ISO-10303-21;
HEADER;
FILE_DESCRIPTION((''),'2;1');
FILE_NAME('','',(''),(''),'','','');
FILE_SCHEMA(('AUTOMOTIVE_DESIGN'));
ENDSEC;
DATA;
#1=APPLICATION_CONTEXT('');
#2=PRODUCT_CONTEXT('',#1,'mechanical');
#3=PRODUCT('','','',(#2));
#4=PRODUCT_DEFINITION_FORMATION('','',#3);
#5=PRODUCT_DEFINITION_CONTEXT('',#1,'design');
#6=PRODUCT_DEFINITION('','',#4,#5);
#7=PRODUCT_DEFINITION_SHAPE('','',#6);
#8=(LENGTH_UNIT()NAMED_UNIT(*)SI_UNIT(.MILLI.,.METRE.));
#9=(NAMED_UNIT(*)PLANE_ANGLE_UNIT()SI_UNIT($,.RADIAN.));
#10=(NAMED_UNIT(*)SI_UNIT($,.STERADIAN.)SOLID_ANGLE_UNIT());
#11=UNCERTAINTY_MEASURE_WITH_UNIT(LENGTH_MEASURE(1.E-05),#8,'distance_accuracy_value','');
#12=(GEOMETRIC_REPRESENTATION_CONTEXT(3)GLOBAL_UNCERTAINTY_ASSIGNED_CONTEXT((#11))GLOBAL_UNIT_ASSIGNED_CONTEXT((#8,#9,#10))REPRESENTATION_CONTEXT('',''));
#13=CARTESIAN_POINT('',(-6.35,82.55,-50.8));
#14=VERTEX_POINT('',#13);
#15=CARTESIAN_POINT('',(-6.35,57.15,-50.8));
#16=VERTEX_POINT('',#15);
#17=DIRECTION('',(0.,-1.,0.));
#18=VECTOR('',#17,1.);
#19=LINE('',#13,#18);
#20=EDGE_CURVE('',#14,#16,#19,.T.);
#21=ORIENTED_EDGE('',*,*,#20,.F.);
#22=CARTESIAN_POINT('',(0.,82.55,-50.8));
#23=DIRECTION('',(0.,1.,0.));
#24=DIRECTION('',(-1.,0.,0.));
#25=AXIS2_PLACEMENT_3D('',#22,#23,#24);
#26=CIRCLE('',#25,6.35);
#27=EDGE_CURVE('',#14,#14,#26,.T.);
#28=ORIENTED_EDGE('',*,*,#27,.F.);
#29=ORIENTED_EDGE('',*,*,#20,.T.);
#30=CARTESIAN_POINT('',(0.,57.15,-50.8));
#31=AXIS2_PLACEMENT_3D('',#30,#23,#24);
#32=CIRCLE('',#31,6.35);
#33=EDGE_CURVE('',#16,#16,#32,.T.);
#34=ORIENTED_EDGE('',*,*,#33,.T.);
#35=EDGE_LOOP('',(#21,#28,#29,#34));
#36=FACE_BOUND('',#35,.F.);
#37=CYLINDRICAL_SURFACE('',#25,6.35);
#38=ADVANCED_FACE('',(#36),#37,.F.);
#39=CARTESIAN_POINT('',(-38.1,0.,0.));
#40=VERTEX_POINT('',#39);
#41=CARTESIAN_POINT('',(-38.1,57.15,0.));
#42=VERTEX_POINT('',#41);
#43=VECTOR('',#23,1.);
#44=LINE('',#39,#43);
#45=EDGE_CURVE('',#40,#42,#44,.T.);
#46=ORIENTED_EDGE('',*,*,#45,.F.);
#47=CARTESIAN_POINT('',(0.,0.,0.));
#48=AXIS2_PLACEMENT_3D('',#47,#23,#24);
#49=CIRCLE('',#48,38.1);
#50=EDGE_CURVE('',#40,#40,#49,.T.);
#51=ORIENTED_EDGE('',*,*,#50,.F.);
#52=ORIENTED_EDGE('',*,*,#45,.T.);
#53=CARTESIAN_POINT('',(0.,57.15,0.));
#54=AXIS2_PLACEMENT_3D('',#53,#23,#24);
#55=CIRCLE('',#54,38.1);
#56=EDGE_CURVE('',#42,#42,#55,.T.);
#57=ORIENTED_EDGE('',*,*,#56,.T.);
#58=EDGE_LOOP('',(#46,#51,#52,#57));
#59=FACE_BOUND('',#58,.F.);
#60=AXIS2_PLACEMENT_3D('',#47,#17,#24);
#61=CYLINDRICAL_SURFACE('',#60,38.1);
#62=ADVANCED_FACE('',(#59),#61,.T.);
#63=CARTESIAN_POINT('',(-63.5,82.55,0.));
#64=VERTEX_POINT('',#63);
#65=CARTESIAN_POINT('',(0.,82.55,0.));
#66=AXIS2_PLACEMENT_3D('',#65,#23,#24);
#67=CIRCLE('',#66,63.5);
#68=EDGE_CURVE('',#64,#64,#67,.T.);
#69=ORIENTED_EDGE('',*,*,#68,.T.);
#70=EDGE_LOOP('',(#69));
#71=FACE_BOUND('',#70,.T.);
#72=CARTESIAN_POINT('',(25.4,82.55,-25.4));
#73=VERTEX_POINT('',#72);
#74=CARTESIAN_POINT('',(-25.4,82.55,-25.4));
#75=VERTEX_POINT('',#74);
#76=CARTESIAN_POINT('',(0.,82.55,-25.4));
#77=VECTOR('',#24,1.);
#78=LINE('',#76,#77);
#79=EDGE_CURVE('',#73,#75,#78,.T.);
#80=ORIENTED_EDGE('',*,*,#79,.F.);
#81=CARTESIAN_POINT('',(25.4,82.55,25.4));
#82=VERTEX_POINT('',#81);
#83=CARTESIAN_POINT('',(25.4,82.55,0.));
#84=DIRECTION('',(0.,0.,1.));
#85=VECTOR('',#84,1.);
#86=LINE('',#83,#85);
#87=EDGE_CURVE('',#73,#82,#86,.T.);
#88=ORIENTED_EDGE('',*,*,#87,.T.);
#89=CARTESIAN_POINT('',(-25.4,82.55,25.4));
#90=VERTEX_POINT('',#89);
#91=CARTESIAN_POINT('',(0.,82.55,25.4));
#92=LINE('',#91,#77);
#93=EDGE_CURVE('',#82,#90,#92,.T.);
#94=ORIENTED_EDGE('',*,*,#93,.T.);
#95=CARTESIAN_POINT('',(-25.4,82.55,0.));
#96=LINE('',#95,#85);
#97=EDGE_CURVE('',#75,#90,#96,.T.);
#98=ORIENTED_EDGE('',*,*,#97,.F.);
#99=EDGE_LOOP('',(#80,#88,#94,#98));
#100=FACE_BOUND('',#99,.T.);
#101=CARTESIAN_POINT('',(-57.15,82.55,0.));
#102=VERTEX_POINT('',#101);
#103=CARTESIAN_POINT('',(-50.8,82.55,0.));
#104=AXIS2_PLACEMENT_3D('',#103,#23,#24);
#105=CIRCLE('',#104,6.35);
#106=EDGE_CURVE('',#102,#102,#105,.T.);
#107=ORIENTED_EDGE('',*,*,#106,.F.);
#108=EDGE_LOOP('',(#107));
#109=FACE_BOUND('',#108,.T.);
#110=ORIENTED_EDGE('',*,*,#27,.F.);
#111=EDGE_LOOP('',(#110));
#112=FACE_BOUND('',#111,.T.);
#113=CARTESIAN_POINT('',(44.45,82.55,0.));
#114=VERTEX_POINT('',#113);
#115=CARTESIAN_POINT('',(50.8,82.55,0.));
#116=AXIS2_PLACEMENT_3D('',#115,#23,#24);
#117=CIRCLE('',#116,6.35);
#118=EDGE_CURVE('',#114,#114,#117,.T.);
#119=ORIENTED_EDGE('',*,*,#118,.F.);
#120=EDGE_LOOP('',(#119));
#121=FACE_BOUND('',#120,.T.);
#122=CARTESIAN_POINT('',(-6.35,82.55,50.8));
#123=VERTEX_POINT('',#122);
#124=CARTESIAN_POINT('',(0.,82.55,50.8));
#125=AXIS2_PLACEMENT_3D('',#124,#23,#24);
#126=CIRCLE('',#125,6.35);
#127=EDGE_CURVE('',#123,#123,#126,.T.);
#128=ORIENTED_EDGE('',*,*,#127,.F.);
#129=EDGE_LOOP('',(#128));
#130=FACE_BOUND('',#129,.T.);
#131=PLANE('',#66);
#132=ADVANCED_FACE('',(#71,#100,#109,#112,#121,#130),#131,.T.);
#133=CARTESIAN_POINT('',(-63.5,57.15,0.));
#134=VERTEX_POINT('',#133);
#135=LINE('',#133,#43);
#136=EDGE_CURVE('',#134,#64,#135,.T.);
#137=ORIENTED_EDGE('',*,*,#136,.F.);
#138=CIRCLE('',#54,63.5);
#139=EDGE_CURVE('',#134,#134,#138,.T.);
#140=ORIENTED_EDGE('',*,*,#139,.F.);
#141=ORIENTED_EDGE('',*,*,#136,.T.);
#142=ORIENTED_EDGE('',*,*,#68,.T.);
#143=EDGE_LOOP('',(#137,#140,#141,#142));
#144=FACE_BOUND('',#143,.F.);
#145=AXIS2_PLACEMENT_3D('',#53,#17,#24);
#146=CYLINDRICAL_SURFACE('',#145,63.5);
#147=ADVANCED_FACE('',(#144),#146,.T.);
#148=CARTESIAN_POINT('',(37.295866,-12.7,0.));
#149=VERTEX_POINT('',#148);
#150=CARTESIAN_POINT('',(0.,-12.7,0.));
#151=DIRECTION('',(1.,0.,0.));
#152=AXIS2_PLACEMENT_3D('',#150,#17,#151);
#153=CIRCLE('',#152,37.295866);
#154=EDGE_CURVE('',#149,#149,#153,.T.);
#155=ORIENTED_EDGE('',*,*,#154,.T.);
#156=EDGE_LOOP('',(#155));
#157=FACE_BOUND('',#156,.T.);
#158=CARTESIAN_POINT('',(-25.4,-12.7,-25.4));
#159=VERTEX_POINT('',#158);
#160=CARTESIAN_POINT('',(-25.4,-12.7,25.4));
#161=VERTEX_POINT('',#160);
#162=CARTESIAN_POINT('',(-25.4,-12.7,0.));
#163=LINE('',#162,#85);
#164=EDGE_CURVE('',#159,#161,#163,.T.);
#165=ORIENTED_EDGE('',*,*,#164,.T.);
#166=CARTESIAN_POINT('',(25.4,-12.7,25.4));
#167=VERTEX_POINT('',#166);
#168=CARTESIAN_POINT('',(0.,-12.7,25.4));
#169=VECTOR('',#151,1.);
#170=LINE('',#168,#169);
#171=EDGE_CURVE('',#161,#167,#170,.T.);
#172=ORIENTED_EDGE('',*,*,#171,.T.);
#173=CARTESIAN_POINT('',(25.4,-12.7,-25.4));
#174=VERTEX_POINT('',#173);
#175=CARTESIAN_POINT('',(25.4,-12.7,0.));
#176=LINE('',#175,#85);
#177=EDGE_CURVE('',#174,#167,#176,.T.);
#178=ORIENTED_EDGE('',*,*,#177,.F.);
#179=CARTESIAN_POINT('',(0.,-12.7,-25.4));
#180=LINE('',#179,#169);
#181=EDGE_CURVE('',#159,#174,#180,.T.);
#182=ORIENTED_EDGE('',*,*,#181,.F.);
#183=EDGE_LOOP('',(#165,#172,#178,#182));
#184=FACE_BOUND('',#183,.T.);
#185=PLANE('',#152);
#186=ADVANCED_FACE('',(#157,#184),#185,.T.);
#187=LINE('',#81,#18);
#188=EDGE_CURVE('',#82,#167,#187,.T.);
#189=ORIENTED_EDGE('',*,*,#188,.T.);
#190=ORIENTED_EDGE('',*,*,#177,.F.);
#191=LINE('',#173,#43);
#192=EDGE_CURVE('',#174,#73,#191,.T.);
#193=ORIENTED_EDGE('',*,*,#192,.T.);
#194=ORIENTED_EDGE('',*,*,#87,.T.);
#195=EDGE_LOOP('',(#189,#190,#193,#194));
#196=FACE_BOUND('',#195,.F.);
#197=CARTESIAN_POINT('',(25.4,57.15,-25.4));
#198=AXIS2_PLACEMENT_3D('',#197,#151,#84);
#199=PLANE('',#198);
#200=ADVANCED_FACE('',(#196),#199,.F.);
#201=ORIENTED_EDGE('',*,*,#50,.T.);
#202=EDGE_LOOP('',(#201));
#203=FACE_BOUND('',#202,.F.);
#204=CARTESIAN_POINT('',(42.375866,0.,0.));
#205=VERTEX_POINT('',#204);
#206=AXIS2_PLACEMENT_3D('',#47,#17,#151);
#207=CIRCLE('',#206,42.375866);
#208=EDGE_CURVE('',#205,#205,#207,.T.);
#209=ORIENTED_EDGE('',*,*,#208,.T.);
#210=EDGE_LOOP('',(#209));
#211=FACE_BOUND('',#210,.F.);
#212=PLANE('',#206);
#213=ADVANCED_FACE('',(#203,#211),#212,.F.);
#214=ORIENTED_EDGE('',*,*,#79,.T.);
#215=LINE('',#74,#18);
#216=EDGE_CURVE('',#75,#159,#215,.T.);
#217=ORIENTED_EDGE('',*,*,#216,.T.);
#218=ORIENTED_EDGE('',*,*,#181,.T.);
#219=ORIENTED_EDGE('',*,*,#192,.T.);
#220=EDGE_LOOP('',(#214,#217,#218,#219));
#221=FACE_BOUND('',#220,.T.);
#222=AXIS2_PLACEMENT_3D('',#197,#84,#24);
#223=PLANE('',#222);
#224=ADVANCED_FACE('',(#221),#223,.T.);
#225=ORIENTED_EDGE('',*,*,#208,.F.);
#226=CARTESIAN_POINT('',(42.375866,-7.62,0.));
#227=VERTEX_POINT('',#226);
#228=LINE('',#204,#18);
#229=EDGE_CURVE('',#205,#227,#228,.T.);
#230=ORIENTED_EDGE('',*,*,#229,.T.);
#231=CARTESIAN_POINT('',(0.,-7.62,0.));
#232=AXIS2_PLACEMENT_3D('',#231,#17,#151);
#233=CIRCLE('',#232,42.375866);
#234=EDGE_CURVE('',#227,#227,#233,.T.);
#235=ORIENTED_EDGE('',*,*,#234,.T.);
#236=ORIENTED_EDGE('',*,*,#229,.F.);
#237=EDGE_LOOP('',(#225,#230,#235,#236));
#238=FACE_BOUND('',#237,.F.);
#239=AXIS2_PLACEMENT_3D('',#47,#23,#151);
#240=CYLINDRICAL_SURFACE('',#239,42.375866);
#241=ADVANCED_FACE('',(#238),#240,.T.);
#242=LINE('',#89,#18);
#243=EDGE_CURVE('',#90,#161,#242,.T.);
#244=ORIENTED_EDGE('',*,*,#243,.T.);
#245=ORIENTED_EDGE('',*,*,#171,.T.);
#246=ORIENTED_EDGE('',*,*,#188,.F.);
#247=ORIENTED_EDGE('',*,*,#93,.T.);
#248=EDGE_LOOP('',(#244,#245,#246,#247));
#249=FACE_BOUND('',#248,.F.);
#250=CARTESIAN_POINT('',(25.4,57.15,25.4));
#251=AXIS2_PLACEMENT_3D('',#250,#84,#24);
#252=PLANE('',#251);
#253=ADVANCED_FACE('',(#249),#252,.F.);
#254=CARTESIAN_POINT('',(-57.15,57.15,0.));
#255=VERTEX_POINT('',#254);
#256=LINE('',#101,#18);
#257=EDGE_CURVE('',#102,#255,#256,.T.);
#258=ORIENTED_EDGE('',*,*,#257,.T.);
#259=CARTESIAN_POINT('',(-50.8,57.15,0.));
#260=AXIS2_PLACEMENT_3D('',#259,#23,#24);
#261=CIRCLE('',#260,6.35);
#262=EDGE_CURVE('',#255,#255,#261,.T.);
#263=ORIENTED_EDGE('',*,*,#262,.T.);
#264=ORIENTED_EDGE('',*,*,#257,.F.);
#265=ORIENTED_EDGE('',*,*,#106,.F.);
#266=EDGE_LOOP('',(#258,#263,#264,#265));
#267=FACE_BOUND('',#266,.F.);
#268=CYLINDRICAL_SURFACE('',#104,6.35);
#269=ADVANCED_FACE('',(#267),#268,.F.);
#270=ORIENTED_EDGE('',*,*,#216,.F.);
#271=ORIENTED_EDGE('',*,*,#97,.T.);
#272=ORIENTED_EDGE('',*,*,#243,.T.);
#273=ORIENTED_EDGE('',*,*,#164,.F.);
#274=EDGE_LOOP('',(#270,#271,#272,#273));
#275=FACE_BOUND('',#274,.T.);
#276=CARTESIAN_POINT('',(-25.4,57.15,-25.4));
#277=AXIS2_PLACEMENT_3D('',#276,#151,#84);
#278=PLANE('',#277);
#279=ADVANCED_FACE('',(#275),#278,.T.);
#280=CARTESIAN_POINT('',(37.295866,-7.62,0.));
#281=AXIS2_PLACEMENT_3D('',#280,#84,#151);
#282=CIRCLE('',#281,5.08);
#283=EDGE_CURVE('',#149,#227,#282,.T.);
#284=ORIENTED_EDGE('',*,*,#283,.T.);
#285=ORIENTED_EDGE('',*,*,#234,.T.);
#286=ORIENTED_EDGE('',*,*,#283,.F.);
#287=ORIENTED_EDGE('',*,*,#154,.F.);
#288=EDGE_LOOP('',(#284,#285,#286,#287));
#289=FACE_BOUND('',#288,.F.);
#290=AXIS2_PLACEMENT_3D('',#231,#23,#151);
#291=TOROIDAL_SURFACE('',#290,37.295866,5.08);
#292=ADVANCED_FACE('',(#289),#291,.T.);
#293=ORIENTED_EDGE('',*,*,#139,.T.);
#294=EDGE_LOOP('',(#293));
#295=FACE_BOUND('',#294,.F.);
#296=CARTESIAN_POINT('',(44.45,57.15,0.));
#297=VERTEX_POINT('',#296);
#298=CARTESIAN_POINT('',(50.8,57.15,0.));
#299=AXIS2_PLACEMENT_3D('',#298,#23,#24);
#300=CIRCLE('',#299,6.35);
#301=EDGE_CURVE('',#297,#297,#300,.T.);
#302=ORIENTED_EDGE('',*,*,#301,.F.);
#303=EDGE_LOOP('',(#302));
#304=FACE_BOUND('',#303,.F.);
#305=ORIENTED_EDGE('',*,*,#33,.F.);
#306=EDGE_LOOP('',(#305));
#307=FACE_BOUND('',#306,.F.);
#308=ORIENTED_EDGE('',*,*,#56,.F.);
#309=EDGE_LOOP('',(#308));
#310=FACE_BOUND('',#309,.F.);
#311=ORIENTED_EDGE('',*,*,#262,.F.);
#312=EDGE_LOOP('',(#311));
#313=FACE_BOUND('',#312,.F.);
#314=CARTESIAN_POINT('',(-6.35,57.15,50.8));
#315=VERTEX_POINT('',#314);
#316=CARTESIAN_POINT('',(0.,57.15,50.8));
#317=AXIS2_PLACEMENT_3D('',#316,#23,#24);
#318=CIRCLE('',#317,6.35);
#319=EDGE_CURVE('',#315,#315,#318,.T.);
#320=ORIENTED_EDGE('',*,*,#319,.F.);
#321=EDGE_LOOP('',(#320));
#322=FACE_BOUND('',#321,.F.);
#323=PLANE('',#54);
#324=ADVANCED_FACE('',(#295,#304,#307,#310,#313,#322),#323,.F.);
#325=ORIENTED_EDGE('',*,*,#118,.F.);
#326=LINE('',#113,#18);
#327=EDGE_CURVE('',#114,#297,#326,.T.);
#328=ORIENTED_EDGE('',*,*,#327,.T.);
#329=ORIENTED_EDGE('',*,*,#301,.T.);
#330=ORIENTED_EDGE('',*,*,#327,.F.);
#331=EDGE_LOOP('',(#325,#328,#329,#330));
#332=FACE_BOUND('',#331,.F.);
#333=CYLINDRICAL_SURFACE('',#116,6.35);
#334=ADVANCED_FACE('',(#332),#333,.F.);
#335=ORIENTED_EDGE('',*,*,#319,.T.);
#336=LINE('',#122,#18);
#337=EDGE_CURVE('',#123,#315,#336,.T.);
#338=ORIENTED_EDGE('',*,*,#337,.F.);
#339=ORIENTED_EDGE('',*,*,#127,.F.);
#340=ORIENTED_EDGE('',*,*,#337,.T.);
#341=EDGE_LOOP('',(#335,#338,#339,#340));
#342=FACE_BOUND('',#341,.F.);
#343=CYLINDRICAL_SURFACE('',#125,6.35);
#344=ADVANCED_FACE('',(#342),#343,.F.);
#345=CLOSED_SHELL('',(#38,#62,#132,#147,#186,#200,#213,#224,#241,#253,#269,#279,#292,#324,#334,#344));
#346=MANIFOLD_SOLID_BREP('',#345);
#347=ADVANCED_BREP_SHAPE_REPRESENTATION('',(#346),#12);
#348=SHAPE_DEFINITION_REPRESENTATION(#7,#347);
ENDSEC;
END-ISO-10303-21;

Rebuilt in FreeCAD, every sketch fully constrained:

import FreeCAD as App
import Part
import Sketcher
from FreeCAD import Vector
Q = App.Units.Quantity


def edges_at(feature, points):
    """Names of the edges that pass closest to the given points."""
    edges = feature.Shape.Edges
    near = lambda p: min(range(len(edges)), key=lambda i: edges[i].distToShape(Part.Vertex(*p))[0])
    return sorted({f"Edge{near(p) + 1}" for p in points})

doc = App.newDocument("Part")
body = doc.addObject("PartDesign::Body", "Body")

# Sketch on XZ plane
sketch1 = doc.addObject("Sketcher::SketchObject", "Sketch")
body.addObject(sketch1)
sketch1.AttachmentSupport = (doc.XZ_Plane, [""])
sketch1.MapMode = "FlatFace"
sketch1.addGeometry([
    Part.Circle(Vector(0, 0, 0), Vector(0, 0, 1), 42.375866),  # 0
    Part.LineSegment(Vector(25.4, -25.4, 0), Vector(-25.4, -25.4, 0)),  # 1
    Part.LineSegment(Vector(-25.4, -25.4, 0), Vector(-25.4, 25.4, 0)),  # 2
    Part.LineSegment(Vector(-25.4, 25.4, 0), Vector(25.4, 25.4, 0)),  # 3
    Part.LineSegment(Vector(25.4, 25.4, 0), Vector(25.4, -25.4, 0)),  # 4
], False)
sketch1.addConstraint([
    Sketcher.Constraint("Coincident", 1, 2, 2, 1),
    Sketcher.Constraint("Coincident", 2, 2, 3, 1),
    Sketcher.Constraint("Coincident", 3, 2, 4, 1),
    Sketcher.Constraint("Coincident", 4, 2, 1, 1),
    Sketcher.Constraint("Horizontal", 1),
    Sketcher.Constraint("Vertical", 2),
    Sketcher.Constraint("Horizontal", 3),
    Sketcher.Constraint("Vertical", 4),
    Sketcher.Constraint("Coincident", 0, 3, -1, 1),
    Sketcher.Constraint("Symmetric", 1, 2, 3, 2, -1, 1),
    Sketcher.Constraint("Equal", 3, 2),
    Sketcher.Constraint("DistanceX", 1, 2, 1, 1, Q("2 in")),
    Sketcher.Constraint("Diameter", 0, 84.751732),
])
pad1 = doc.addObject("PartDesign::Pad", "Pad")
body.addObject(pad1)
pad1.Profile = sketch1
pad1.Length = Q("0.5 in")

# Sketch on XZ plane
sketch2 = doc.addObject("Sketcher::SketchObject", "Sketch001")
body.addObject(sketch2)
sketch2.AttachmentSupport = (doc.XZ_Plane, [""])
sketch2.MapMode = "FlatFace"
sketch2.addGeometry([
    Part.Circle(Vector(0, 0, 0), Vector(0, 0, 1), 38.1),  # 0
    Part.LineSegment(Vector(-25.4, -25.4, 0), Vector(25.4, -25.4, 0)),  # 1
    Part.LineSegment(Vector(25.4, -25.4, 0), Vector(25.4, 25.4, 0)),  # 2
    Part.LineSegment(Vector(25.4, 25.4, 0), Vector(-25.4, 25.4, 0)),  # 3
    Part.LineSegment(Vector(-25.4, 25.4, 0), Vector(-25.4, -25.4, 0)),  # 4
], False)
sketch2.addConstraint([
    Sketcher.Constraint("Coincident", 1, 2, 2, 1),
    Sketcher.Constraint("Coincident", 2, 2, 3, 1),
    Sketcher.Constraint("Coincident", 3, 2, 4, 1),
    Sketcher.Constraint("Coincident", 4, 2, 1, 1),
    Sketcher.Constraint("Horizontal", 1),
    Sketcher.Constraint("Vertical", 2),
    Sketcher.Constraint("Horizontal", 3),
    Sketcher.Constraint("Vertical", 4),
    Sketcher.Constraint("Coincident", 0, 3, -1, 1),
    Sketcher.Constraint("Symmetric", 1, 2, 3, 2, -1, 1),
    Sketcher.Constraint("Equal", 3, 2),
    Sketcher.Constraint("Diameter", 0, Q("3 in")),
    Sketcher.Constraint("DistanceX", 1, 1, 1, 2, Q("2 in")),
])
pad2 = doc.addObject("PartDesign::Pad", "Pad001")
body.addObject(pad2)
pad2.Profile = sketch2
pad2.Length = Q("2.25 in")
pad2.Reversed = True

# Sketch on XZ plane
sketch3 = doc.addObject("Sketcher::SketchObject", "Sketch002")
body.addObject(sketch3)
sketch3.AttachmentSupport = (doc.XZ_Plane, [""])
sketch3.MapMode = "FlatFace"
sketch3.AttachmentOffset = App.Placement(Vector(0, 0, -2.25 * 25.4), App.Rotation())
sketch3.addGeometry([
    Part.Circle(Vector(0, 0, 0), Vector(0, 0, 1), 63.5),  # 0
    Part.LineSegment(Vector(-25.4, -25.4, 0), Vector(25.4, -25.4, 0)),  # 1
    Part.LineSegment(Vector(25.4, -25.4, 0), Vector(25.4, 25.4, 0)),  # 2
    Part.LineSegment(Vector(25.4, 25.4, 0), Vector(-25.4, 25.4, 0)),  # 3
    Part.LineSegment(Vector(-25.4, 25.4, 0), Vector(-25.4, -25.4, 0)),  # 4
], False)
sketch3.addConstraint([
    Sketcher.Constraint("Coincident", 1, 2, 2, 1),
    Sketcher.Constraint("Coincident", 2, 2, 3, 1),
    Sketcher.Constraint("Coincident", 3, 2, 4, 1),
    Sketcher.Constraint("Coincident", 4, 2, 1, 1),
    Sketcher.Constraint("Horizontal", 1),
    Sketcher.Constraint("Vertical", 2),
    Sketcher.Constraint("Horizontal", 3),
    Sketcher.Constraint("Vertical", 4),
    Sketcher.Constraint("Coincident", 0, 3, -1, 1),
    Sketcher.Constraint("Symmetric", 1, 2, 3, 2, -1, 1),
    Sketcher.Constraint("Equal", 3, 2),
    Sketcher.Constraint("Diameter", 0, Q("5 in")),
    Sketcher.Constraint("DistanceX", 1, 1, 1, 2, Q("2 in")),
])
pad3 = doc.addObject("PartDesign::Pad", "Pad002")
body.addObject(pad3)
pad3.Profile = sketch3
pad3.Length = Q("1 in")
pad3.Reversed = True

# Sketch on XZ plane
sketch4 = doc.addObject("Sketcher::SketchObject", "Sketch003")
body.addObject(sketch4)
sketch4.AttachmentSupport = (doc.XZ_Plane, [""])
sketch4.MapMode = "FlatFace"
sketch4.AttachmentOffset = App.Placement(Vector(0, 0, -3.25 * 25.4), App.Rotation())
sketch4.addGeometry([
    Part.Circle(Vector(0, -50.8, 0), Vector(0, 0, 1), 6.35),
    Part.Circle(Vector(50.8, 0, 0), Vector(0, 0, 1), 6.35),
    Part.Circle(Vector(0, 50.8, 0), Vector(0, 0, 1), 6.35),
    Part.Circle(Vector(-50.8, 0, 0), Vector(0, 0, 1), 6.35),
], False)
sketch4.addConstraint([
    Sketcher.Constraint("Equal", 0, 1),
    Sketcher.Constraint("Equal", 1, 2),
    Sketcher.Constraint("Equal", 2, 3),
    Sketcher.Constraint("Symmetric", 0, 3, 2, 3, -1, 1),
    Sketcher.Constraint("Symmetric", 1, 3, 3, 3, -1, 1),
    Sketcher.Constraint("PointOnObject", 0, 3, -2),
    Sketcher.Constraint("PointOnObject", 1, 3, -1),
    Sketcher.Constraint("Diameter", 0, Q("0.5 in")),
    Sketcher.Constraint("DistanceY", 0, 3, -1, 1, Q("2 in")),
    Sketcher.Constraint("DistanceX", -1, 1, 1, 3, Q("2 in")),
])
pocket1 = doc.addObject("PartDesign::Pocket", "Pocket")
body.addObject(pocket1)
pocket1.Profile = sketch4
pocket1.Length = Q("1.5 in")
pocket1.Reversed = True
doc.recompute()

fillet = doc.addObject("PartDesign::Fillet", "Fillet")
body.addObject(fillet)
fillet.Base = (pocket1, edges_at(pocket1, [(-42.376, -12.7, 0)]))
fillet.Radius = Q("0.2 in")

doc.recompute()
